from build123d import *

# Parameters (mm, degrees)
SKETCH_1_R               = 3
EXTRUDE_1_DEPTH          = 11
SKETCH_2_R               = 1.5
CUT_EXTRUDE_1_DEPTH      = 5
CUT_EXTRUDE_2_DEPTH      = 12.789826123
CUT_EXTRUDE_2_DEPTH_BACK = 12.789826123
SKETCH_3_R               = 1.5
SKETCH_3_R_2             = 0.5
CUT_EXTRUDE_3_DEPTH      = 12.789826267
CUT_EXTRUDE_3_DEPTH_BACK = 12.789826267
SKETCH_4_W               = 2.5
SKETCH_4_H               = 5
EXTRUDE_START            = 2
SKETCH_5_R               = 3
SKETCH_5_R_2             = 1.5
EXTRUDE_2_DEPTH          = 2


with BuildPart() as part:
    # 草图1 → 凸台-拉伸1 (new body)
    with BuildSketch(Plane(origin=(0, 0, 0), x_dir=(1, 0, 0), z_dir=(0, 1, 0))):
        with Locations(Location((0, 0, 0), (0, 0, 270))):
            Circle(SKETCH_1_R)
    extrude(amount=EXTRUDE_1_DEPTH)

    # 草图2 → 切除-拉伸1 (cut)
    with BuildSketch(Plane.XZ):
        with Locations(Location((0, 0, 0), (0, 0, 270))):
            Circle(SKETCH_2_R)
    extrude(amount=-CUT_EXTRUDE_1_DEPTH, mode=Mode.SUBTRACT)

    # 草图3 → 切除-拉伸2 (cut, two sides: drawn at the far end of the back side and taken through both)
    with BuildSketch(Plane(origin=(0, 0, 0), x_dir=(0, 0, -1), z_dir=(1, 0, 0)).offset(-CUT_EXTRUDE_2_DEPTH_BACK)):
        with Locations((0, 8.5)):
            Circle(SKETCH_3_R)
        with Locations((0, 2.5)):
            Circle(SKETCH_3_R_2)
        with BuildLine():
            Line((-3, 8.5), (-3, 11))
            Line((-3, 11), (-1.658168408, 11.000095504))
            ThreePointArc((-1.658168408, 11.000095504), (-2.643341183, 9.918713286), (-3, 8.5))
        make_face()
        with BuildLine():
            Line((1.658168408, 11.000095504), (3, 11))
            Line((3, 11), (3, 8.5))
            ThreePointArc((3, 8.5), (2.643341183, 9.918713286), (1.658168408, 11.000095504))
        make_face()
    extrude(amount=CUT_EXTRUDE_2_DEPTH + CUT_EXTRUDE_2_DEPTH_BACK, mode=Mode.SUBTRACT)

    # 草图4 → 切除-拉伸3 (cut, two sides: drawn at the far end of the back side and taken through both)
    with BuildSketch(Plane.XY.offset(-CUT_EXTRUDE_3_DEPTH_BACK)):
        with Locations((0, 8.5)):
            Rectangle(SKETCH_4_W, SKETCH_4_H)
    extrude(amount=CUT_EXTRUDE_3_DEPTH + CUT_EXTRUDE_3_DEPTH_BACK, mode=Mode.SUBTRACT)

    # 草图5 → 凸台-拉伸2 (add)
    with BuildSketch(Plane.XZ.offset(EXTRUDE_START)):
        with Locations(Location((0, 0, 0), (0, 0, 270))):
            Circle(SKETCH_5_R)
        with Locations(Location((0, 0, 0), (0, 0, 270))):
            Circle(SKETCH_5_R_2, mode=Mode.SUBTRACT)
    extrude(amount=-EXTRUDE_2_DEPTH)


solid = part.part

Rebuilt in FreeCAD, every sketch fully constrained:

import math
import FreeCAD as App
import Part
import Sketcher
from FreeCAD import Vector
Q = App.Units.Quantity

doc = App.newDocument("Part")
body = doc.addObject("PartDesign::Body", "Body")

# Sketch on XZ plane
sketch1 = body.newObject("Sketcher::SketchObject", "Sketch")
sketch1.AttachmentSupport = (doc.getObject("XZ_Plane"), [""])
sketch1.MapMode = "FlatFace"
sketch1.addGeometry(Part.Circle(Vector(0, 0, 0), Vector(0, 0, 1), 3), False)
sketch1.addConstraint([
    Sketcher.Constraint("Coincident", 0, 3, -1, 1),
    Sketcher.Constraint("Diameter", 0, Q("6 mm")),
])
pad1 = body.newObject("PartDesign::Pad", "Pad")
pad1.Profile = sketch1
pad1.Length = 11
pad1.Reversed = True

# Sketch on XZ plane
sketch2 = body.newObject("Sketcher::SketchObject", "Sketch001")
sketch2.AttachmentSupport = (doc.getObject("XZ_Plane"), [""])
sketch2.MapMode = "FlatFace"
sketch2.addGeometry(Part.Circle(Vector(0, 0, 0), Vector(0, 0, 1), 1.5), False)
sketch2.addConstraint([
    Sketcher.Constraint("Coincident", 0, 3, -1, 1),
    Sketcher.Constraint("Diameter", 0, Q("3 mm")),
])
pocket1 = body.newObject("PartDesign::Pocket", "Pocket")
pocket1.Profile = sketch2
pocket1.Length = 5

# Sketch on YZ plane
sketch3 = body.newObject("Sketcher::SketchObject", "Sketch002")
sketch3.AttachmentSupport = (doc.getObject("YZ_Plane"), [""])
sketch3.MapMode = "FlatFace"
sketch3.addGeometry([
    Part.Circle(Vector(8.5, 0, 0), Vector(0, 0, 1), 1.5),  # 0
    Part.Circle(Vector(2.5, 0, 0), Vector(0, 0, 1), 0.5),  # 1
    Part.LineSegment(Vector(11, 3, 0), Vector(8.5, 3, 0)),  # 2
    Part.ArcOfCircle(Part.Circle(Vector(8.5, 0, 0), Vector(0, 0, 1), 3), math.radians(33.55401), math.radians(90)),  # 3
    Part.LineSegment(Vector(11.000096, 1.658168, 0), Vector(11, 3, 0)),  # 4
    Part.LineSegment(Vector(11, -3, 0), Vector(11.000096, -1.658168, 0)),  # 5
    Part.ArcOfCircle(Part.Circle(Vector(8.5, 0, 0), Vector(0, 0, 1), 3), math.radians(-90), math.radians(-33.55401)),  # 6
    Part.LineSegment(Vector(8.5, -3, 0), Vector(11, -3, 0)),  # 7
], False)
sketch3.addConstraint([
    Sketcher.Constraint("Tangent", 2, 2, 3, 2),
    Sketcher.Constraint("Coincident", 3, 1, 4, 1),
    Sketcher.Constraint("Coincident", 4, 2, 2, 1),
    Sketcher.Constraint("Coincident", 5, 2, 6, 2),
    Sketcher.Constraint("Tangent", 6, 1, 7, 1),
    Sketcher.Constraint("Coincident", 7, 2, 5, 1),
    Sketcher.Constraint("Horizontal", 2),
    Sketcher.Constraint("Horizontal", 7),
    Sketcher.Constraint("Coincident", 3, 3, 0, 3),
    Sketcher.Constraint("Coincident", 6, 3, 0, 3),
    Sketcher.Constraint("Equal", 3, 6),
    Sketcher.Constraint("Symmetric", 3, 1, 5, 2, -1),
    Sketcher.Constraint("PointOnObject", 1, 3, -1),
    Sketcher.Constraint("Vertical", 4, 2, 7, 2),
    Sketcher.Constraint("Diameter", 0, Q("3 mm")),
    Sketcher.Constraint("Diameter", 1, Q("1 mm")),
    Sketcher.Constraint("Radius", 3, Q("3 mm")),
    Sketcher.Constraint("DistanceX", 2, 2, 2, 1, Q("2.5 mm")),
    Sketcher.Constraint("DistanceX", -1, 1, 4, 2, Q("11 mm")),
    Sketcher.Constraint("DistanceX", 1, 3, 0, 3, Q("6 mm")),
    Sketcher.Constraint("Distance", 4, Q("1.341832 mm")),
])
pocket2 = body.newObject("PartDesign::Pocket", "Pocket001")
pocket2.Profile = sketch3
pocket2.Type = "ThroughAll"
pocket2.Midplane = True

# Sketch on XY plane
sketch4 = body.newObject("Sketcher::SketchObject", "Sketch003")
sketch4.AttachmentSupport = (doc.getObject("XY_Plane"), [""])
sketch4.MapMode = "FlatFace"
sketch4.addGeometry([
    Part.LineSegment(Vector(-1.25, 11, 0), Vector(-1.25, 6, 0)),
    Part.LineSegment(Vector(-1.25, 6, 0), Vector(1.25, 6, 0)),
    Part.LineSegment(Vector(1.25, 6, 0), Vector(1.25, 11, 0)),
    Part.LineSegment(Vector(1.25, 11, 0), Vector(-1.25, 11, 0)),
], False)
sketch4.addConstraint([
    Sketcher.Constraint("Coincident", 0, 2, 1, 1),
    Sketcher.Constraint("Coincident", 1, 2, 2, 1),
    Sketcher.Constraint("Coincident", 2, 2, 3, 1),
    Sketcher.Constraint("Coincident", 3, 2, 0, 1),
    Sketcher.Constraint("Vertical", 0),
    Sketcher.Constraint("Horizontal", 1),
    Sketcher.Constraint("Vertical", 2),
    Sketcher.Constraint("Horizontal", 3),
    Sketcher.Constraint("DistanceY", 0, 2, 0, 1, Q("5 mm")),
    Sketcher.Constraint("DistanceX", 1, 1, 1, 2, Q("2.5 mm")),
    Sketcher.Constraint("DistanceY", -1, 1, 0, 2, Q("6 mm")),
    Sketcher.Constraint("DistanceX", 0, 2, -1, 1, Q("1.25 mm")),
])
pocket3 = body.newObject("PartDesign::Pocket", "Pocket002")
pocket3.Profile = sketch4
pocket3.Type = "ThroughAll"
pocket3.Midplane = True

# Sketch on XZ plane
sketch5 = body.newObject("Sketcher::SketchObject", "Sketch004")
sketch5.AttachmentSupport = (doc.getObject("XZ_Plane"), [""])
sketch5.MapMode = "FlatFace"
sketch5.AttachmentOffset = App.Placement(Vector(0, 0, 2), App.Rotation())
sketch5.addGeometry([
    Part.Circle(Vector(0, 0, 0), Vector(0, 0, 1), 3),
    Part.Circle(Vector(0, 0, 0), Vector(0, 0, 1), 1.5),
], False)
sketch5.addConstraint([
    Sketcher.Constraint("Coincident", 0, 3, -1, 1),
    Sketcher.Constraint("Coincident", 1, 3, -1, 1),
    Sketcher.Constraint("Diameter", 0, Q("6 mm")),
    Sketcher.Constraint("Diameter", 1, Q("3 mm")),
])
pad2 = body.newObject("PartDesign::Pad", "Pad001")
pad2.Profile = sketch5
pad2.Length = 2
pad2.Reversed = True

doc.recompute()
